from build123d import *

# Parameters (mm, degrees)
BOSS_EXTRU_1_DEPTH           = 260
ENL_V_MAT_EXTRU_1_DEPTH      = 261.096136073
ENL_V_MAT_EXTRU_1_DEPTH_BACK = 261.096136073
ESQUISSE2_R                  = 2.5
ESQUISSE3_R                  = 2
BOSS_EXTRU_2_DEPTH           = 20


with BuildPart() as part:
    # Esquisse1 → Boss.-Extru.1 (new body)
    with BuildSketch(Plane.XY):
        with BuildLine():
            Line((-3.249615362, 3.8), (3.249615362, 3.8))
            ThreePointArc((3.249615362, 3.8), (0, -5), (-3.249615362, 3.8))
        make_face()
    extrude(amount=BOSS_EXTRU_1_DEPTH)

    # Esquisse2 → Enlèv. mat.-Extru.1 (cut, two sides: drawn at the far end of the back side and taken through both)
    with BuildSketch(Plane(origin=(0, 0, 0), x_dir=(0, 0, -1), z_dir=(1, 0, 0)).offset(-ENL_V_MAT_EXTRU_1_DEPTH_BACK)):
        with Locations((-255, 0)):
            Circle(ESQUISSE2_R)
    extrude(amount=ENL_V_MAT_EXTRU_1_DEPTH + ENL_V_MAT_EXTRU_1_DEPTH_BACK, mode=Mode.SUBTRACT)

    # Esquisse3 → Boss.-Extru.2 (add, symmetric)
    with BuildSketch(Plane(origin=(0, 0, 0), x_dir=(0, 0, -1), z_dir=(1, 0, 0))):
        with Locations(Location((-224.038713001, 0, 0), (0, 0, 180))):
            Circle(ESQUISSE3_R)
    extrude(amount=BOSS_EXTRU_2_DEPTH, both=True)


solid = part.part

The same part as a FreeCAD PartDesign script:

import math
import FreeCAD as App
import Part
import Sketcher
from FreeCAD import Vector
Q = App.Units.Quantity

doc = App.newDocument("Part")
body = doc.addObject("PartDesign::Body", "Body")

# Sketch on XY plane
sketch1 = body.newObject("Sketcher::SketchObject", "Sketch")
sketch1.AttachmentSupport = (doc.getObject("XY_Plane"), [""])
sketch1.MapMode = "FlatFace"
sketch1.addGeometry(Part.LineSegment(Vector(3, 4, 0), Vector(-3, 4, 0)), False)
sketch1.addGeometry(Part.ArcOfCircle(Part.Circle(Vector(0, 0, 0), Vector(0, 0, 1), 5), math.radians(131), math.radians(409)), False)
sketch1.addConstraint(Sketcher.Constraint("Coincident", 0, 1, 1, 2))
sketch1.addConstraint(Sketcher.Constraint("Coincident", 1, 1, 0, 2))
sketch1.addConstraint(Sketcher.Constraint("Horizontal", 0))
sketch1.addConstraint(Sketcher.Constraint("Coincident", 1, 3, -1, 1))
sketch1.addConstraint(Sketcher.Constraint("Radius", 1, Q("5 mm")))
sketch1.addConstraint(Sketcher.Constraint("DistanceY", -1, 1, 0, 1, Q("3.8 mm")))
pad1 = body.newObject("PartDesign::Pad", "Pad")
pad1.Profile = sketch1
pad1.Length = 260

# Sketch on YZ plane
sketch2 = body.newObject("Sketcher::SketchObject", "Sketch001")
sketch2.AttachmentSupport = (doc.getObject("YZ_Plane"), [""])
sketch2.MapMode = "FlatFace"
sketch2.addGeometry(Part.Circle(Vector(0, 255, 0), Vector(0, 0, 1), 2.5), False)
sketch2.addConstraint(Sketcher.Constraint("PointOnObject", 0, 3, -2))
sketch2.addConstraint(Sketcher.Constraint("Diameter", 0, Q("5 mm")))
sketch2.addConstraint(Sketcher.Constraint("DistanceY", -1, 1, 0, 3, Q("255 mm")))
pocket1 = body.newObject("PartDesign::Pocket", "Pocket")
pocket1.Profile = sketch2
pocket1.Type = "ThroughAll"
pocket1.Midplane = True

# Sketch on YZ plane
sketch3 = body.newObject("Sketcher::SketchObject", "Sketch002")
sketch3.AttachmentSupport = (doc.getObject("YZ_Plane"), [""])
sketch3.MapMode = "FlatFace"
sketch3.addGeometry(Part.Circle(Vector(0, 224, 0), Vector(0, 0, 1), 2), False)
sketch3.addConstraint(Sketcher.Constraint("PointOnObject", 0, 3, -2))
sketch3.addConstraint(Sketcher.Constraint("Diameter", 0, Q("4 mm")))
sketch3.addConstraint(Sketcher.Constraint("DistanceY", -1, 1, 0, 3, Q("224.038713 mm")))
pad2 = body.newObject("PartDesign::Pad", "Pad001")
pad2.Profile = sketch3
pad2.Length = 40
pad2.Midplane = True

doc.recompute()
